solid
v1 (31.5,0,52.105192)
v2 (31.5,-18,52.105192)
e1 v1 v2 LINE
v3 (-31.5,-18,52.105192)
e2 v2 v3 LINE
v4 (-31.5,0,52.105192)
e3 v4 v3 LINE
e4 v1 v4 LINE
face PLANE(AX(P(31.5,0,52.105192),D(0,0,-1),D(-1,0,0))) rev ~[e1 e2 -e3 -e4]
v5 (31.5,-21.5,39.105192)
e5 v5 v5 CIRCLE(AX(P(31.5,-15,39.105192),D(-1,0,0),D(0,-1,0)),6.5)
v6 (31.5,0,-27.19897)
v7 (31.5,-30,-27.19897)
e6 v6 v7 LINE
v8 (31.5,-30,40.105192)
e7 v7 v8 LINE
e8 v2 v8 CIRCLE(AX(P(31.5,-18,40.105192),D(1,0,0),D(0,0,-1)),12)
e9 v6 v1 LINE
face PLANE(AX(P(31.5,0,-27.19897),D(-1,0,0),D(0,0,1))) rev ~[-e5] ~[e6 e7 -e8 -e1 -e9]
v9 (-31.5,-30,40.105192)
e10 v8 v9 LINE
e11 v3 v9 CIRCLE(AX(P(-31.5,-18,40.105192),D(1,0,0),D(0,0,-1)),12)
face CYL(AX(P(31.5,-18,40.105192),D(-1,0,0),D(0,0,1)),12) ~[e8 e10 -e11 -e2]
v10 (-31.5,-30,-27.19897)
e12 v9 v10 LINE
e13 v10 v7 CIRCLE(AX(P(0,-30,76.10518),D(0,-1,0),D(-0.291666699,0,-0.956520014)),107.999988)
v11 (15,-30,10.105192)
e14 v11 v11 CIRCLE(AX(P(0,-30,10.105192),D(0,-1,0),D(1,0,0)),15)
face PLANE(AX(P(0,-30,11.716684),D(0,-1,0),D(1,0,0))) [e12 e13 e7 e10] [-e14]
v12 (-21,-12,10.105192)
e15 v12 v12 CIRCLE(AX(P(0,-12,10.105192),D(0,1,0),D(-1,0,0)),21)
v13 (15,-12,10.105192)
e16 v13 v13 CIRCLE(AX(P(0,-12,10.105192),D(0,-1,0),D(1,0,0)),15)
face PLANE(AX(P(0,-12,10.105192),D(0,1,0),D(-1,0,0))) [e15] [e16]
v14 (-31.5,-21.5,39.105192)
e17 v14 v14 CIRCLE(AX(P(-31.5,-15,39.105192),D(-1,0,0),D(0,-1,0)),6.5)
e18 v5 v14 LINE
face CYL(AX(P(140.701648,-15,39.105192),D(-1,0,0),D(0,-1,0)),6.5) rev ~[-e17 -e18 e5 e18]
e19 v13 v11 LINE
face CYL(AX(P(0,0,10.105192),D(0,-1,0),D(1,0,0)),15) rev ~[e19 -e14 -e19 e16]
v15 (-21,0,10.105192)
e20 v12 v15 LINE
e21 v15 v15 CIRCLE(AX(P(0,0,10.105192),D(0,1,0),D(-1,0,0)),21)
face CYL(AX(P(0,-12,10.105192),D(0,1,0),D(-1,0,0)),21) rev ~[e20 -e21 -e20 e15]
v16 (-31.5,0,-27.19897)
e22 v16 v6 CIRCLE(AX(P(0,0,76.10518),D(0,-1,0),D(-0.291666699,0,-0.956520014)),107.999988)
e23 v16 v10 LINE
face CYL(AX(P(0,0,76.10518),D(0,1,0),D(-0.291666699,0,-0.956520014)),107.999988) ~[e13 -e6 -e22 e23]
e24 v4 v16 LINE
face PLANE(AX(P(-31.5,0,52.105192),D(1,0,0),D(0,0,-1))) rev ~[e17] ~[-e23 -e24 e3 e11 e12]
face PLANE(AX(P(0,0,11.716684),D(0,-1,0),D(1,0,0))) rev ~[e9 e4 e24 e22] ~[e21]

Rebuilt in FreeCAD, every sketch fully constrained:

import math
import FreeCAD as App
import Part
import Sketcher
from FreeCAD import Vector
Q = App.Units.Quantity


def edges_at(feature, points):
    """Names of the edges that pass closest to the given points."""
    edges = feature.Shape.Edges
    near = lambda p: min(range(len(edges)), key=lambda i: edges[i].distToShape(Part.Vertex(*p))[0])
    return sorted({f"Edge{near(p) + 1}" for p in points})

doc = App.newDocument("Part")
body = doc.addObject("PartDesign::Body", "Body")

sketch1 = body.newObject("Sketcher::SketchObject", "Sketch")
sketch1.AttachmentSupport = (doc.getObject("XZ_Plane"), [""])
sketch1.MapMode = "FlatFace"
sketch1.addGeometry([
    Part.LineSegment(Vector(32, 52, 0), Vector(-32, 52, 0)),
    Part.LineSegment(Vector(-32, 52, 0), Vector(-32, -27, 0)),
    Part.ArcOfCircle(Part.Circle(Vector(0, 76, 0), Vector(0, 0, 1), 108), math.radians(-107), math.radians(-73)),
    Part.LineSegment(Vector(32, -27, 0), Vector(32, 52, 0)),
], False)
sketch1.addConstraint([
    Sketcher.Constraint("Coincident", 0, 2, 1, 1),
    Sketcher.Constraint("Coincident", 1, 2, 2, 1),
    Sketcher.Constraint("Coincident", 2, 2, 3, 1),
    Sketcher.Constraint("Coincident", 3, 2, 0, 1),
    Sketcher.Constraint("Horizontal", 0),
    Sketcher.Constraint("Vertical", 1),
    Sketcher.Constraint("Vertical", 3),
    Sketcher.Constraint("Symmetric", 1, 2, 2, 2, -2),
    Sketcher.Constraint("DistanceX", 0, 2, 0, 1, Q("63 mm")),
    Sketcher.Constraint("Radius", 2, Q("107.999988 mm")),
    Sketcher.Constraint("DistanceY", 1, 2, 1, 1, Q("79.304162 mm")),
    Sketcher.Constraint("DistanceY", -1, 1, 2, 3, Q("76.10518 mm")),
])
pad1 = body.newObject("PartDesign::Pad", "Pad")
pad1.Profile = sketch1
pad1.Length = 30

sketch2 = body.newObject("Sketcher::SketchObject", "Sketch001")
sketch2.AttachmentSupport = (doc.getObject("XZ_Plane"), [""])
sketch2.MapMode = "FlatFace"
sketch2.addGeometry(Part.Circle(Vector(0, 10, 0), Vector(0, 0, 1), 15), False)
sketch2.addConstraint([
    Sketcher.Constraint("PointOnObject", 0, 3, -2),
    Sketcher.Constraint("Diameter", 0, Q("30 mm")),
    Sketcher.Constraint("DistanceY", -1, 1, 0, 3, Q("10.105192 mm")),
])
doc.recompute()
hole = body.newObject("PartDesign::Hole", "Hole")
hole.Profile = sketch2
hole.ThreadType = "None"
hole.Diameter = 30
hole.DepthType = "ThroughAll"
hole.HoleCutType = "Counterbore"
hole.HoleCutDiameter = 42
hole.HoleCutDepth = 12
hole.Reversed = True
doc.recompute()

fillet = body.newObject("PartDesign::Fillet", "Fillet")
fillet.Base = (hole, edges_at(hole, [(0, -30, 52.105)]))
fillet.Radius = 12

sketch3 = body.newObject("Sketcher::SketchObject", "Sketch002")
sketch3.AttachmentSupport = (doc.getObject("YZ_Plane"), [""])
sketch3.MapMode = "FlatFace"
sketch3.AttachmentOffset = App.Placement(Vector(0, 0, 31.5), App.Rotation())
sketch3.addGeometry(Part.Circle(Vector(-15, 39, 0), Vector(0, 0, 1), 6), False)
sketch3.addConstraint([
    Sketcher.Constraint("Diameter", 0, Q("13 mm")),
    Sketcher.Constraint("DistanceX", 0, 3, -1, 1, Q("15 mm")),
    Sketcher.Constraint("DistanceY", -1, 1, 0, 3, Q("39.105192 mm")),
])
doc.recompute()
hole2 = body.newObject("PartDesign::Hole", "Hole001")
hole2.Profile = sketch3
hole2.ThreadType = "None"
hole2.Diameter = 13
hole2.DepthType = "ThroughAll"

doc.recompute()
